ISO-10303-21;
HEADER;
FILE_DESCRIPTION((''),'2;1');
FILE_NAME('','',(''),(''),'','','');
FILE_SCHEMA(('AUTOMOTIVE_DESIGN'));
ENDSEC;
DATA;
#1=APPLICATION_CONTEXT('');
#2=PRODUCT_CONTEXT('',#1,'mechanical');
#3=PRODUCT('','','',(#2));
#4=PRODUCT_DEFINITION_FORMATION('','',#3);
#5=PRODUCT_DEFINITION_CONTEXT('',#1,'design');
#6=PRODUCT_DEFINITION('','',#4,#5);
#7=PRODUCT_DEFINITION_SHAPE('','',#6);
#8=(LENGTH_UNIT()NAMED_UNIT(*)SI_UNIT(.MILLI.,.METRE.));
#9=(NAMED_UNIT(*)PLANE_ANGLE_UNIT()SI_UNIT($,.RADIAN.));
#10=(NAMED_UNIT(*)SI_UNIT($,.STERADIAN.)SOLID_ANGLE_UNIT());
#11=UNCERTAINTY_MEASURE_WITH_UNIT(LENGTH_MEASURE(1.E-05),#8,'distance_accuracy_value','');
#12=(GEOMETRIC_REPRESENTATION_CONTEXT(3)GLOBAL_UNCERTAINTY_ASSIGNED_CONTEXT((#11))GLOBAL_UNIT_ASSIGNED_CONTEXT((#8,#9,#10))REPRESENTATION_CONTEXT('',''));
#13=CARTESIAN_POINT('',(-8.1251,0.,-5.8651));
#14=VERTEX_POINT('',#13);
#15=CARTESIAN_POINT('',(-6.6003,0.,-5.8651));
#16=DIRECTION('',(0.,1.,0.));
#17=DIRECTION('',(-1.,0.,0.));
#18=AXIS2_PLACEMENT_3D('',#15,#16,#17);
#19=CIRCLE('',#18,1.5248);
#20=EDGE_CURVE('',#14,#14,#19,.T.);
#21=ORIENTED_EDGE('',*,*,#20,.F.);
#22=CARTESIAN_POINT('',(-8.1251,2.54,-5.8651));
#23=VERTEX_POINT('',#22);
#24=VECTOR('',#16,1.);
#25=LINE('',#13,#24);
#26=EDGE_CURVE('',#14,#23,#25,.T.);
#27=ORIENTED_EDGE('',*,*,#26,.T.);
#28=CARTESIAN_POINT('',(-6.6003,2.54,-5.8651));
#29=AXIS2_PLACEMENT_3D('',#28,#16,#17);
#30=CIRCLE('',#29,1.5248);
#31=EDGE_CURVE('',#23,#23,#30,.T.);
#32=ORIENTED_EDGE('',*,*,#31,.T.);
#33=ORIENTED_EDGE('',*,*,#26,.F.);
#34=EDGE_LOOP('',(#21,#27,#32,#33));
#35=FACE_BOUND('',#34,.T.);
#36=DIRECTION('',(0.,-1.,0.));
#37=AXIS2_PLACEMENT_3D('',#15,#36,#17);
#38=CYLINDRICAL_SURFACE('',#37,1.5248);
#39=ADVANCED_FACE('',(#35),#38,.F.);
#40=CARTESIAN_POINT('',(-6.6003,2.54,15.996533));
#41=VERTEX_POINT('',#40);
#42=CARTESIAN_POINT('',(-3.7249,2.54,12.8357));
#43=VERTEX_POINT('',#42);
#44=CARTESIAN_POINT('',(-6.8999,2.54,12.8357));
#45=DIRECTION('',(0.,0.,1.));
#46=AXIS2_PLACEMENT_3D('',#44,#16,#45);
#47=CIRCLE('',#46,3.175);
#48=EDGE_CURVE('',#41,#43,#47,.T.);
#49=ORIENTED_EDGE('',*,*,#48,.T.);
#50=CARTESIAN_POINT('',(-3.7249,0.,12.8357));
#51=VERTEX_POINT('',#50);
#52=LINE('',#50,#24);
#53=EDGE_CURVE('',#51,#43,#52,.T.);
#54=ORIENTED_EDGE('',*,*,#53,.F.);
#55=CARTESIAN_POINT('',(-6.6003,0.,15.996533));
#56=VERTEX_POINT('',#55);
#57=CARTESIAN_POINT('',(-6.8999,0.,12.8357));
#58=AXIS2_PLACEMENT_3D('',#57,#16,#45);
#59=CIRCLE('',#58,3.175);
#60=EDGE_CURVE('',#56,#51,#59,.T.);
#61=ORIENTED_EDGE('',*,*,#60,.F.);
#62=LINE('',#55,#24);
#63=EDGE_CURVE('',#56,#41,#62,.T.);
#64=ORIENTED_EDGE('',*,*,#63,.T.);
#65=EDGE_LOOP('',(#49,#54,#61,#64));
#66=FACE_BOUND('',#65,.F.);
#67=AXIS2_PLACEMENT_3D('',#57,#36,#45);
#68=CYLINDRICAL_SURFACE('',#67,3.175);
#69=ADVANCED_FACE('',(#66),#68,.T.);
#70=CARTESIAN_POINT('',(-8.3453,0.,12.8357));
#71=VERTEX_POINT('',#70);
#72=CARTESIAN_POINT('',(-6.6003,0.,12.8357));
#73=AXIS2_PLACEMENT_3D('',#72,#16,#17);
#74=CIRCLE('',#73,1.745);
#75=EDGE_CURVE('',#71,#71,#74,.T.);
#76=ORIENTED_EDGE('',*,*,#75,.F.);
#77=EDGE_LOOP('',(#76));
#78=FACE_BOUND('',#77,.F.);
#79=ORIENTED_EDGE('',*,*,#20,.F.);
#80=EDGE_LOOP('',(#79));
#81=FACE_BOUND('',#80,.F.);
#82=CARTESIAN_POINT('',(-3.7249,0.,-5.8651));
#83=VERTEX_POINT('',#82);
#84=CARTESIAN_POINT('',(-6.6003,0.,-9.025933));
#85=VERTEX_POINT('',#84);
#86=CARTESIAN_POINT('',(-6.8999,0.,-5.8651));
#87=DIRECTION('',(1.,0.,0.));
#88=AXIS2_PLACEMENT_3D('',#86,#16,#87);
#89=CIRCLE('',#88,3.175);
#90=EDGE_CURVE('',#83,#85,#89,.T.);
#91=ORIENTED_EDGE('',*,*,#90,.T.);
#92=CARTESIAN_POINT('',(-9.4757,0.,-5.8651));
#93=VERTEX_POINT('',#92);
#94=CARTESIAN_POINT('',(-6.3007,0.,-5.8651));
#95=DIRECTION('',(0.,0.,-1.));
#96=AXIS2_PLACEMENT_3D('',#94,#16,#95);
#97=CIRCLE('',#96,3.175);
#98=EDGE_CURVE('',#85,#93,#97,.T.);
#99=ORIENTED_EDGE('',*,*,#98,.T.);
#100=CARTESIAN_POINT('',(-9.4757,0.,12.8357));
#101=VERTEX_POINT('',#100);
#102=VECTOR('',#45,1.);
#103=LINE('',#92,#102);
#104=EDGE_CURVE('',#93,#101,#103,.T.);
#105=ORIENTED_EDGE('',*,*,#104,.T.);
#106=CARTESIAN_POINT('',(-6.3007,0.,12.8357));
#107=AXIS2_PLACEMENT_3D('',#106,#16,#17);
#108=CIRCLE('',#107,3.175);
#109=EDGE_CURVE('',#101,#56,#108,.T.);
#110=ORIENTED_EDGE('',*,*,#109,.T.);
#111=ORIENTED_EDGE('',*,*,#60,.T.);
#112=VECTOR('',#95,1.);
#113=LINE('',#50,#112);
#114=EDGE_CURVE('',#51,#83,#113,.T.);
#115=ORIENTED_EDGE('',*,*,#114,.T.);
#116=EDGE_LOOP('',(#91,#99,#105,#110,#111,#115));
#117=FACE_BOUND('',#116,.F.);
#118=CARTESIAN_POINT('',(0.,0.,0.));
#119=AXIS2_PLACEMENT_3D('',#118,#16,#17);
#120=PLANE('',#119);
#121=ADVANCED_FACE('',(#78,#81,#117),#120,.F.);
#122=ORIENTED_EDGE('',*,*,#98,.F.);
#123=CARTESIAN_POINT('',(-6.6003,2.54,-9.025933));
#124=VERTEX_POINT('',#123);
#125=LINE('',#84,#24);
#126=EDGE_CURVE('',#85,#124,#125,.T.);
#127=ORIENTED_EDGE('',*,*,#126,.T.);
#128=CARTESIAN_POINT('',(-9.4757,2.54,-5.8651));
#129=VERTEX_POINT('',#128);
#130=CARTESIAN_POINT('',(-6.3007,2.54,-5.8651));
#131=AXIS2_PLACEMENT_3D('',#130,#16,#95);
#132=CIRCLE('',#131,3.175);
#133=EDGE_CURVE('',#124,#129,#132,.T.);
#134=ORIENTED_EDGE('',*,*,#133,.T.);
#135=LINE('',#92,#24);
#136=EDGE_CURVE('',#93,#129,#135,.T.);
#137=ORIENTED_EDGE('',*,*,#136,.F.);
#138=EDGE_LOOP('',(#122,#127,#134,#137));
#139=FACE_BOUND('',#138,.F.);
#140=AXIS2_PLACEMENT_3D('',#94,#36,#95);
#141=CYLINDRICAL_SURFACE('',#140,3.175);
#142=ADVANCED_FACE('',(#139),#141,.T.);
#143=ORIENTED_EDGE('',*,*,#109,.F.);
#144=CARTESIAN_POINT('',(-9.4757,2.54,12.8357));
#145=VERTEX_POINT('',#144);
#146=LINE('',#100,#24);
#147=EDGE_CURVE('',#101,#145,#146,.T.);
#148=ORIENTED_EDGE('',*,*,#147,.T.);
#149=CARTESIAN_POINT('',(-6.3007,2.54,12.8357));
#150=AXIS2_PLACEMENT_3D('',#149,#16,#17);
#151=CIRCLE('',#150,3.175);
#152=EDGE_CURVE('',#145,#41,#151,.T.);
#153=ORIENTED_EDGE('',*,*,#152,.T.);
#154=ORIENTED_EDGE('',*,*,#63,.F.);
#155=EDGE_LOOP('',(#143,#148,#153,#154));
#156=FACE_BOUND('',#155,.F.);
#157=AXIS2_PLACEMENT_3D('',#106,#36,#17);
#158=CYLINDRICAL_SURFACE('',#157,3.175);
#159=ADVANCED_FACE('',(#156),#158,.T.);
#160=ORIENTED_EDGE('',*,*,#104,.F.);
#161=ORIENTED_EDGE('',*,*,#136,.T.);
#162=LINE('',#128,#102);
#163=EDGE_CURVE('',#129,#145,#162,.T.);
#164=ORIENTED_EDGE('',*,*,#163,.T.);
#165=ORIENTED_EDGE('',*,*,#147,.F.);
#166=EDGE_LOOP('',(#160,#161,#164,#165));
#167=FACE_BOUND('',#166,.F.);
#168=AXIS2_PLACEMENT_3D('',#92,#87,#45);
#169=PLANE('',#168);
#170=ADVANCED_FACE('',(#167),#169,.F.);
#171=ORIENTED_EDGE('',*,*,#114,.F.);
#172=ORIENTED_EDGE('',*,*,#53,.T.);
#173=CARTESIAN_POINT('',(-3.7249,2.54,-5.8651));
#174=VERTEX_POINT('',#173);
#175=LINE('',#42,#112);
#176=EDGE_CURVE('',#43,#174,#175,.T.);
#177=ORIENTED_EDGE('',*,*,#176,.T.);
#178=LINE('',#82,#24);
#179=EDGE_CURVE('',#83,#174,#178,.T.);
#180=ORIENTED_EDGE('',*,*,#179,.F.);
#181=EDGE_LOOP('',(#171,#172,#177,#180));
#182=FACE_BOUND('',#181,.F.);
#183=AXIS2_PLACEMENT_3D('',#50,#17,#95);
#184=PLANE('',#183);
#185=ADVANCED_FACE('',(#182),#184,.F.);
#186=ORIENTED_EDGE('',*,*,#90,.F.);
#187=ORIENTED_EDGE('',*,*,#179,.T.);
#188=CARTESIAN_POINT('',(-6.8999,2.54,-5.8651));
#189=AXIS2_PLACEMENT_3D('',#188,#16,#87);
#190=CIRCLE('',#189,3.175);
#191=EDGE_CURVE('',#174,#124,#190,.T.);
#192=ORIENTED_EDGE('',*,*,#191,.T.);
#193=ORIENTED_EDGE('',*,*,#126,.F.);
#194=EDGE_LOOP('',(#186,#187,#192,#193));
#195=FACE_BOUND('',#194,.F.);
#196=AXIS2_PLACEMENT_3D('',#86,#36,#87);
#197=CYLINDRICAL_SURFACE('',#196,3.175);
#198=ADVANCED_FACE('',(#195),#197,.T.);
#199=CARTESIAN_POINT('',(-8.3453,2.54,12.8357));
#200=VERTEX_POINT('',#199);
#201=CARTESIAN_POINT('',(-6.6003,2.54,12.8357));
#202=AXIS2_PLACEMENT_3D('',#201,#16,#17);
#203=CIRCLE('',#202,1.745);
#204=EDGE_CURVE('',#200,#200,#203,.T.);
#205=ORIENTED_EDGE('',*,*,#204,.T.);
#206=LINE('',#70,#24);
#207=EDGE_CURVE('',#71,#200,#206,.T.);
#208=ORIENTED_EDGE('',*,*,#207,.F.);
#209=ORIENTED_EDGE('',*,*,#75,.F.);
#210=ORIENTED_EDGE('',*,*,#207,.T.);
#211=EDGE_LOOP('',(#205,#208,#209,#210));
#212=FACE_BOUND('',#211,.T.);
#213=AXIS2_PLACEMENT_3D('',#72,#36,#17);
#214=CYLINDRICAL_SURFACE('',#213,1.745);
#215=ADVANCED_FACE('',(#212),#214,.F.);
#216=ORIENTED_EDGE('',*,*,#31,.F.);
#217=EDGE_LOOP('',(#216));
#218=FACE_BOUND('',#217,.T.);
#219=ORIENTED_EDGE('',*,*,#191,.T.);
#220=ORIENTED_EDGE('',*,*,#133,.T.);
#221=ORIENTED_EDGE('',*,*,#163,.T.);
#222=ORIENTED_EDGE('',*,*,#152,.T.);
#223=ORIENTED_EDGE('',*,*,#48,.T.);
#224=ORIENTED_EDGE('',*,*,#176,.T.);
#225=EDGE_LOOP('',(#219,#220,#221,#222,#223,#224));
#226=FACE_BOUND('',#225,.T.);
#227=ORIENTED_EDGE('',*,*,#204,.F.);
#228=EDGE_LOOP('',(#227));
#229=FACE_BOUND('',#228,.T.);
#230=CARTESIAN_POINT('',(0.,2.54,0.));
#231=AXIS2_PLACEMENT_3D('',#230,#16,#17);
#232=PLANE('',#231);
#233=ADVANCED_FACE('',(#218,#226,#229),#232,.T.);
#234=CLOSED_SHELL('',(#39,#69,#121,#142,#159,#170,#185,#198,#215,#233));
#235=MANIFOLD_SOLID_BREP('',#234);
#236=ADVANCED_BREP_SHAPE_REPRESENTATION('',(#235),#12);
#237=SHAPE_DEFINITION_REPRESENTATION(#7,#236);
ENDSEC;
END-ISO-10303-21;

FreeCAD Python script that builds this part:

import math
import FreeCAD as App
import Part
import Sketcher
Q = App.Units.Quantity

doc = App.newDocument("Part")
body = doc.addObject("PartDesign::Body", "Body")

sketch1 = doc.addObject("Sketcher::SketchObject", "Sketch")
body.addObject(sketch1)
sketch1.AttachmentSupport = (doc.XZ_Plane, [""])
sketch1.MapMode = "FlatFace"
sketch1.addGeometry(Part.ArcOfCircle(Part.Circle(App.Vector(-6.3, 12.8, 0), App.Vector(0, 0, 1), 3.2), math.radians(95), math.radians(180)), False)
sketch1.addGeometry(Part.ArcOfCircle(Part.Circle(App.Vector(-6.9, 12.8, 0), App.Vector(0, 0, 1), 3.2), math.radians(0), math.radians(85)), False)
sketch1.addGeometry(Part.LineSegment(App.Vector(-3.7, 12.8, 0), App.Vector(-3.7, -5.9, 0)), False)
sketch1.addGeometry(Part.ArcOfCircle(Part.Circle(App.Vector(-6.9, -5.9, 0), App.Vector(0, 0, 1), 3.2), math.radians(-85), math.radians(0)), False)
sketch1.addGeometry(Part.ArcOfCircle(Part.Circle(App.Vector(-6.3, -5.9, 0), App.Vector(0, 0, 1), 3.2), math.radians(180), math.radians(265)), False)
sketch1.addGeometry(Part.LineSegment(App.Vector(-9.5, -5.9, 0), App.Vector(-9.5, 12.8, 0)), False)
sketch1.addGeometry(Part.Circle(App.Vector(-6.6, -5.9, 0), App.Vector(0, 0, 1), 1.5), False)
sketch1.addGeometry(Part.Circle(App.Vector(-6.6, 12.8, 0), App.Vector(0, 0, 1), 1.7), False)
sketch1.addConstraint(Sketcher.Constraint("Coincident", 0, 1, 1, 2))
sketch1.addConstraint(Sketcher.Constraint("Tangent", 1, 1, 2, 1))
sketch1.addConstraint(Sketcher.Constraint("Tangent", 2, 2, 3, 2))
sketch1.addConstraint(Sketcher.Constraint("Coincident", 3, 1, 4, 2))
sketch1.addConstraint(Sketcher.Constraint("Tangent", 4, 1, 5, 1))
sketch1.addConstraint(Sketcher.Constraint("Tangent", 5, 2, 0, 2))
sketch1.addConstraint(Sketcher.Constraint("Vertical", 2))
sketch1.addConstraint(Sketcher.Constraint("Vertical", 5))
sketch1.addConstraint(Sketcher.Constraint("Equal", 0, 1))
sketch1.addConstraint(Sketcher.Constraint("Equal", 1, 3))
sketch1.addConstraint(Sketcher.Constraint("Equal", 3, 4))
sketch1.addConstraint(Sketcher.Constraint("Horizontal", 0, 3, 1, 3))
sketch1.addConstraint(Sketcher.Constraint("Horizontal", 3, 3, 4, 3))
sketch1.addConstraint(Sketcher.Constraint("Horizontal", 4, 3, 6, 3))
sketch1.addConstraint(Sketcher.Constraint("Horizontal", 1, 3, 7, 3))
sketch1.addConstraint(Sketcher.Constraint("Vertical", 6, 3, 7, 3))
sketch1.addConstraint(Sketcher.Constraint("Vertical", 7, 3, 0, 1))
sketch1.addConstraint(Sketcher.Constraint("Radius", 0, Q("0.125 in")))
sketch1.addConstraint(Sketcher.Constraint("Diameter", 7, Q("0.1374 in")))
sketch1.addConstraint(Sketcher.Constraint("Diameter", 6, Q("3.0496 mm")))
sketch1.addConstraint(Sketcher.Constraint("DistanceY", 2, 2, 2, 1, Q("18.7008 mm")))
sketch1.addConstraint(Sketcher.Constraint("DistanceY", 3, 3, -1, 1, Q("0.2309 in")))
sketch1.addConstraint(Sketcher.Constraint("DistanceX", 1, 3, 0, 3, Q("0.0236 in")))
sketch1.addConstraint(Sketcher.Constraint("DistanceX", 0, 3, -1, 1, Q("6.3007 mm")))
pad1 = doc.addObject("PartDesign::Pad", "Pad")
body.addObject(pad1)
pad1.Profile = sketch1
pad1.Length = Q("0.1 in")
pad1.Reversed = True

doc.recompute()
